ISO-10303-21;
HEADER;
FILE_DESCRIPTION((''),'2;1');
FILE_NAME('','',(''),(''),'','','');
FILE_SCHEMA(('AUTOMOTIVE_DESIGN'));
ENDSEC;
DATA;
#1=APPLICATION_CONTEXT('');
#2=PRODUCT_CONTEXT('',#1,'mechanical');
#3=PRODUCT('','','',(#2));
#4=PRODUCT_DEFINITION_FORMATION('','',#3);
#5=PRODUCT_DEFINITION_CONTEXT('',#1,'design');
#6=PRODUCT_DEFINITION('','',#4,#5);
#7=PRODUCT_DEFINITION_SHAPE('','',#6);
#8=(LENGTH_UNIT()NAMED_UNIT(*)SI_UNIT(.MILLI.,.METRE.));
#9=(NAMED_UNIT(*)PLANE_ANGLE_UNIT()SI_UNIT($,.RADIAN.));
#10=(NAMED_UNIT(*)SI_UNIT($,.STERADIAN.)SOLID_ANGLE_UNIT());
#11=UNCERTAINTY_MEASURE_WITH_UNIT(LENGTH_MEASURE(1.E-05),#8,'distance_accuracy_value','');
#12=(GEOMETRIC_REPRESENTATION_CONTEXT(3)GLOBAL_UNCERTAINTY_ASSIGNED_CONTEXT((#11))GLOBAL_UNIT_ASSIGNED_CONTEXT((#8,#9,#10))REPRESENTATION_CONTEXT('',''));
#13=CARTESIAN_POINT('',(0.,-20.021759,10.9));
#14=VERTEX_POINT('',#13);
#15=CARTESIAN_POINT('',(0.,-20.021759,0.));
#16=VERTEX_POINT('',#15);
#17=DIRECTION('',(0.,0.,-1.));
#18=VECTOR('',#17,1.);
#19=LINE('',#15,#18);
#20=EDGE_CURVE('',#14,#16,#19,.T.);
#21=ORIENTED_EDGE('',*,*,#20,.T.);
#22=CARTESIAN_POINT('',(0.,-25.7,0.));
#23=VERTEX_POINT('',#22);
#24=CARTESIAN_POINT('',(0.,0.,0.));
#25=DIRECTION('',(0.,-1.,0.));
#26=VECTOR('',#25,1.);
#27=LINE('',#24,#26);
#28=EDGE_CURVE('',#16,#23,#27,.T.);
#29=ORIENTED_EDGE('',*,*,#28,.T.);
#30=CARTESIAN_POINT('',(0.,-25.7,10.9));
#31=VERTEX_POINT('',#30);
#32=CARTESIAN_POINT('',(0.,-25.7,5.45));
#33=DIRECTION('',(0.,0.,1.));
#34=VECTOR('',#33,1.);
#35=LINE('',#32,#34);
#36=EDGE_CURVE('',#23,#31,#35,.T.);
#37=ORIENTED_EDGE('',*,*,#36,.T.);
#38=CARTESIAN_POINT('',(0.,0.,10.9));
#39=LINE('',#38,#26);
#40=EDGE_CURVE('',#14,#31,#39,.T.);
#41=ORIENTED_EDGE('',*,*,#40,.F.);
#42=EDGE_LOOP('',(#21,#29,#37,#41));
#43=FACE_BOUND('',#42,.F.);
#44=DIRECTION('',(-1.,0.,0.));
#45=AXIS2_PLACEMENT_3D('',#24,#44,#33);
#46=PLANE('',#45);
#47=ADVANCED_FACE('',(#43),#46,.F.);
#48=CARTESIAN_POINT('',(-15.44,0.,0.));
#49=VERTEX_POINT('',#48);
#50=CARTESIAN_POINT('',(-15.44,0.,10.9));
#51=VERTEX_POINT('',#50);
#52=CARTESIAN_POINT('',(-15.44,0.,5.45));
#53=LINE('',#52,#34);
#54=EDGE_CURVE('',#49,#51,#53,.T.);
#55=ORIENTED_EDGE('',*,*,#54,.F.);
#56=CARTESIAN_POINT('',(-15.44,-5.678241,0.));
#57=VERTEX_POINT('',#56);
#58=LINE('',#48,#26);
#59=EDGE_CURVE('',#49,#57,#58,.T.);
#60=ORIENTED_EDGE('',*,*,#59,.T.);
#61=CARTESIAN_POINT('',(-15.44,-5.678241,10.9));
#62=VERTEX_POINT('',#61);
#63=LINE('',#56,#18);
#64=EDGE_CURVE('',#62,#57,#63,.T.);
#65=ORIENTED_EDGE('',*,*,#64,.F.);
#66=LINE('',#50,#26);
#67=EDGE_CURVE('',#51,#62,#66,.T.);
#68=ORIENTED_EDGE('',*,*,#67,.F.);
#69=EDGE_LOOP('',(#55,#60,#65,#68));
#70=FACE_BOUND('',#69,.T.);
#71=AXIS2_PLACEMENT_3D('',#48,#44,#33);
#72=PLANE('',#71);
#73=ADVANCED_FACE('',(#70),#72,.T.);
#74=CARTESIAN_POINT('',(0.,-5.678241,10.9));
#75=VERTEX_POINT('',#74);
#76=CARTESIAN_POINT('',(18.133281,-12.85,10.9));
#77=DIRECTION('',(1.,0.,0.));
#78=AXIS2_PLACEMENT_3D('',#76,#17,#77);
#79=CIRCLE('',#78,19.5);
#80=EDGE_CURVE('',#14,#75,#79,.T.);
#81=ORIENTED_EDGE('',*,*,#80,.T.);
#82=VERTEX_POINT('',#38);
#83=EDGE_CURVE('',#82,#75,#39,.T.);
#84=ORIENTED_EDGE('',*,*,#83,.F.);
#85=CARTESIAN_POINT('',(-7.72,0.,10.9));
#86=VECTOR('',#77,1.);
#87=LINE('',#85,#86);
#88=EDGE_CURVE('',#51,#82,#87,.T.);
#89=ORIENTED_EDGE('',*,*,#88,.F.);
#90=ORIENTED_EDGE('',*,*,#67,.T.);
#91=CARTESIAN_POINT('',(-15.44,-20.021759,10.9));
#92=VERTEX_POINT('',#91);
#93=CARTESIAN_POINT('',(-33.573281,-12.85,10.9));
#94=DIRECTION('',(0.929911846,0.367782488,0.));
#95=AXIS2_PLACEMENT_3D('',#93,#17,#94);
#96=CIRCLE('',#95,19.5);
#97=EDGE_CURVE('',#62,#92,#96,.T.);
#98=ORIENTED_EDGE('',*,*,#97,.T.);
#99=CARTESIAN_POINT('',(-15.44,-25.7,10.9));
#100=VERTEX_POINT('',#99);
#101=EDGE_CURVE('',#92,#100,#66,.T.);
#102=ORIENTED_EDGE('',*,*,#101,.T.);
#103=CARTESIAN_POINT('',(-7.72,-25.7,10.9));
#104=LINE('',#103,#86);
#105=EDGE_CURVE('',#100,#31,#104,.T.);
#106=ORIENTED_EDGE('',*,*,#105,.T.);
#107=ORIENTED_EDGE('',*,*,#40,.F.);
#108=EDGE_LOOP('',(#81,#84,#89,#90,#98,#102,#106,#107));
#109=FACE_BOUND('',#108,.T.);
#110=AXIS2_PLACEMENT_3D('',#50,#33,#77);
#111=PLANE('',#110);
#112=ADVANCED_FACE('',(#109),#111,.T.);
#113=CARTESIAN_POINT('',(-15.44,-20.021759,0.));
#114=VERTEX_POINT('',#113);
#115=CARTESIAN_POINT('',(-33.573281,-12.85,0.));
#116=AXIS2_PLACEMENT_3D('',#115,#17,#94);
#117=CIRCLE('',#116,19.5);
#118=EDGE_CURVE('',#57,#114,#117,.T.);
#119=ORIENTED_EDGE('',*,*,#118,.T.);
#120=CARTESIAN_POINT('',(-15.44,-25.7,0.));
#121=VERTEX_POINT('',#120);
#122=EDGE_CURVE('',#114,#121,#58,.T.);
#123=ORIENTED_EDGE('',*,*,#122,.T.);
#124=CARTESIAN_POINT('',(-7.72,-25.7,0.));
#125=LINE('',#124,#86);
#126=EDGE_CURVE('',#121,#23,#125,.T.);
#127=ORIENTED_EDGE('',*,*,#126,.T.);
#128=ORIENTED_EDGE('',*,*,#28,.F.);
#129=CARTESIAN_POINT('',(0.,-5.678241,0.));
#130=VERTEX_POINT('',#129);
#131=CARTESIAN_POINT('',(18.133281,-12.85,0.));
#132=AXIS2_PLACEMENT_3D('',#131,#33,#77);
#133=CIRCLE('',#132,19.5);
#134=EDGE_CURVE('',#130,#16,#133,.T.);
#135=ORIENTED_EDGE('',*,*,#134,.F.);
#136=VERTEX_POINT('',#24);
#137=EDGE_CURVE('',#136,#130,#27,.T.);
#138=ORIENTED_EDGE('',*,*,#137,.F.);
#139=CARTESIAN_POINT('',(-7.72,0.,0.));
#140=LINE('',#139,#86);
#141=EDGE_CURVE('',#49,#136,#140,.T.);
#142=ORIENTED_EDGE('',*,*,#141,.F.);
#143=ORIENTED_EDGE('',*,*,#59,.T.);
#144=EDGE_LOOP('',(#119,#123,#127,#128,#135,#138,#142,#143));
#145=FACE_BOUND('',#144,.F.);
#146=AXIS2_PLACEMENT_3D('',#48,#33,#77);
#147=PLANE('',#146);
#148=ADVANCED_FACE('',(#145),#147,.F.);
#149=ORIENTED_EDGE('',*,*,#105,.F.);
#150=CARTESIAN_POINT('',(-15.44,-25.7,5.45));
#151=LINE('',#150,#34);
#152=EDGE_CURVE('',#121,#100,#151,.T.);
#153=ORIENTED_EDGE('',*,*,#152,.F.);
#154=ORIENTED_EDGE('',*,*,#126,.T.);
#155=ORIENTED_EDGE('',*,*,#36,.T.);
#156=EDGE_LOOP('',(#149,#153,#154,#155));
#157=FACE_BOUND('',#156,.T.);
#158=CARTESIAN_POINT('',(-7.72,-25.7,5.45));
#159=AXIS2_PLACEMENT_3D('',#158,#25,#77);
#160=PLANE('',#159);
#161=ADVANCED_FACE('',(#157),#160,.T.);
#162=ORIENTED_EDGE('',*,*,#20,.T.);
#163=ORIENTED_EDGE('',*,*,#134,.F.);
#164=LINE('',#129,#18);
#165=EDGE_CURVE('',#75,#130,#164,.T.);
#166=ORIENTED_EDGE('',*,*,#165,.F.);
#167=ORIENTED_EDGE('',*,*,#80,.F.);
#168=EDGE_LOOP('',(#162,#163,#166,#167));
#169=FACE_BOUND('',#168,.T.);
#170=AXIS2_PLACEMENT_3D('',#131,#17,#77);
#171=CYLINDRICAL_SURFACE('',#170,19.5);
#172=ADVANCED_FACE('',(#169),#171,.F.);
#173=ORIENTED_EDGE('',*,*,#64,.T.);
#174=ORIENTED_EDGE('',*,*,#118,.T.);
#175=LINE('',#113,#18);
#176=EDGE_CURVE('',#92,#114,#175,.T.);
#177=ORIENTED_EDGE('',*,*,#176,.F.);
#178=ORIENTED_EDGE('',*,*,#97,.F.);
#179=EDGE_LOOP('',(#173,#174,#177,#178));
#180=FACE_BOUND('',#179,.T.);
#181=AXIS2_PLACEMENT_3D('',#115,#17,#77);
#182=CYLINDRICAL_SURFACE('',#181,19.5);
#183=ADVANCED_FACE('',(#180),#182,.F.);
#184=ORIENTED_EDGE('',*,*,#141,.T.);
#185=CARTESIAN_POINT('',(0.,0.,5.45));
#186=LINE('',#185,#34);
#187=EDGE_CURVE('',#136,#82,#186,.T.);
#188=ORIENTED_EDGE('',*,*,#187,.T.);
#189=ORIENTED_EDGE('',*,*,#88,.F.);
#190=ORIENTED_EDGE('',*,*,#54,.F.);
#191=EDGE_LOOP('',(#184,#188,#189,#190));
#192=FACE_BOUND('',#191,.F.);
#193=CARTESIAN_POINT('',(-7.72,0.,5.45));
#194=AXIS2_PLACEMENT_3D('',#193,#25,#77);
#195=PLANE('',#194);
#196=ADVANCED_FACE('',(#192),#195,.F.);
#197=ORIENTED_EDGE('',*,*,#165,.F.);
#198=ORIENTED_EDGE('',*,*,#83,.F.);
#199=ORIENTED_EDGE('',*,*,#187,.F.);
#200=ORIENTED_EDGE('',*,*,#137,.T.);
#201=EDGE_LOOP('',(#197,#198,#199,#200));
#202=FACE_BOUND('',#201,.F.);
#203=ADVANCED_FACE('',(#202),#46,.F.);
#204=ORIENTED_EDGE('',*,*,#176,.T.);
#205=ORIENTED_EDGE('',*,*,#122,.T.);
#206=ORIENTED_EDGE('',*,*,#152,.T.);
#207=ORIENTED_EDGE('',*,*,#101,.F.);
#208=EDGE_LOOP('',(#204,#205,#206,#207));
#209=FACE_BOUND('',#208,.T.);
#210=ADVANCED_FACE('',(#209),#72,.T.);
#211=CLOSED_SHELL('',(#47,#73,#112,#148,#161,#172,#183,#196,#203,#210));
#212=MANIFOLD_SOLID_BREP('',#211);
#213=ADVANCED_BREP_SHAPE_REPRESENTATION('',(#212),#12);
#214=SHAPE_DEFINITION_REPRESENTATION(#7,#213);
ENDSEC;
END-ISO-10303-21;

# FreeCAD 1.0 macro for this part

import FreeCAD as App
import Part
import Sketcher
from FreeCAD import Vector

doc = App.newDocument("Part")
body = doc.addObject("PartDesign::Body", "Body")

# Sketch on XZ plane
sketch1 = body.newObject("Sketcher::SketchObject", "Sketch")
sketch1.AttachmentSupport = (doc.getObject("XZ_Plane"), [""])
sketch1.MapMode = "FlatFace"
sketch1.addGeometry(Part.LineSegment(Vector(-15, 11, 0), Vector(-15, 0, 0)), False)
sketch1.addGeometry(Part.LineSegment(Vector(-15, 0, 0), Vector(0, 0, 0)), False)
sketch1.addGeometry(Part.LineSegment(Vector(0, 0, 0), Vector(0, 11, 0)), False)
sketch1.addGeometry(Part.LineSegment(Vector(0, 11, 0), Vector(-15, 11, 0)), False)
sketch1.addConstraint(Sketcher.Constraint("Coincident", 0, 2, 1, 1))
sketch1.addConstraint(Sketcher.Constraint("Coincident", 1, 2, 2, 1))
sketch1.addConstraint(Sketcher.Constraint("Coincident", 2, 2, 3, 1))
sketch1.addConstraint(Sketcher.Constraint("Coincident", 3, 2, 0, 1))
sketch1.addConstraint(Sketcher.Constraint("Vertical", 0))
sketch1.addConstraint(Sketcher.Constraint("Horizontal", 1))
sketch1.addConstraint(Sketcher.Constraint("Vertical", 2))
sketch1.addConstraint(Sketcher.Constraint("Horizontal", 3))
sketch1.addConstraint(Sketcher.Constraint("Coincident", 1, 2, -1, 1))
sketch1.addConstraint(Sketcher.Constraint("DistanceY", 0, 2, 0, 1, 10.9))
sketch1.addConstraint(Sketcher.Constraint("DistanceX", 1, 1, 1, 2, 15.44))
pad1 = body.newObject("PartDesign::Pad", "Pad")
pad1.Profile = sketch1
pad1.Length = 25.7

# Sketch on XY plane
sketch2 = body.newObject("Sketcher::SketchObject", "Sketch001")
sketch2.AttachmentSupport = (doc.getObject("XY_Plane"), [""])
sketch2.MapMode = "FlatFace"
sketch2.addGeometry(Part.Circle(Vector(-34, -13, 0), Vector(0, 0, 1), 20), False)
sketch2.addGeometry(Part.Circle(Vector(18, -13, 0), Vector(0, 0, 1), 20), False)
sketch2.addConstraint(Sketcher.Constraint("Equal", 0, 1))
sketch2.addConstraint(Sketcher.Constraint("Horizontal", 0, 3, 1, 3))
sketch2.addConstraint(Sketcher.Constraint("Diameter", 0, 39.0))
sketch2.addConstraint(Sketcher.Constraint("DistanceY", 0, 3, -1, 1, 12.85))
sketch2.addConstraint(Sketcher.Constraint("DistanceX", 0, 3, -1, 1, 33.573281))
sketch2.addConstraint(Sketcher.Constraint("DistanceX", -1, 1, 1, 3, 18.133281))
pocket1 = body.newObject("PartDesign::Pocket", "Pocket")
pocket1.Profile = sketch2
pocket1.Type = "ThroughAll"
pocket1.Reversed = True

doc.recompute()
